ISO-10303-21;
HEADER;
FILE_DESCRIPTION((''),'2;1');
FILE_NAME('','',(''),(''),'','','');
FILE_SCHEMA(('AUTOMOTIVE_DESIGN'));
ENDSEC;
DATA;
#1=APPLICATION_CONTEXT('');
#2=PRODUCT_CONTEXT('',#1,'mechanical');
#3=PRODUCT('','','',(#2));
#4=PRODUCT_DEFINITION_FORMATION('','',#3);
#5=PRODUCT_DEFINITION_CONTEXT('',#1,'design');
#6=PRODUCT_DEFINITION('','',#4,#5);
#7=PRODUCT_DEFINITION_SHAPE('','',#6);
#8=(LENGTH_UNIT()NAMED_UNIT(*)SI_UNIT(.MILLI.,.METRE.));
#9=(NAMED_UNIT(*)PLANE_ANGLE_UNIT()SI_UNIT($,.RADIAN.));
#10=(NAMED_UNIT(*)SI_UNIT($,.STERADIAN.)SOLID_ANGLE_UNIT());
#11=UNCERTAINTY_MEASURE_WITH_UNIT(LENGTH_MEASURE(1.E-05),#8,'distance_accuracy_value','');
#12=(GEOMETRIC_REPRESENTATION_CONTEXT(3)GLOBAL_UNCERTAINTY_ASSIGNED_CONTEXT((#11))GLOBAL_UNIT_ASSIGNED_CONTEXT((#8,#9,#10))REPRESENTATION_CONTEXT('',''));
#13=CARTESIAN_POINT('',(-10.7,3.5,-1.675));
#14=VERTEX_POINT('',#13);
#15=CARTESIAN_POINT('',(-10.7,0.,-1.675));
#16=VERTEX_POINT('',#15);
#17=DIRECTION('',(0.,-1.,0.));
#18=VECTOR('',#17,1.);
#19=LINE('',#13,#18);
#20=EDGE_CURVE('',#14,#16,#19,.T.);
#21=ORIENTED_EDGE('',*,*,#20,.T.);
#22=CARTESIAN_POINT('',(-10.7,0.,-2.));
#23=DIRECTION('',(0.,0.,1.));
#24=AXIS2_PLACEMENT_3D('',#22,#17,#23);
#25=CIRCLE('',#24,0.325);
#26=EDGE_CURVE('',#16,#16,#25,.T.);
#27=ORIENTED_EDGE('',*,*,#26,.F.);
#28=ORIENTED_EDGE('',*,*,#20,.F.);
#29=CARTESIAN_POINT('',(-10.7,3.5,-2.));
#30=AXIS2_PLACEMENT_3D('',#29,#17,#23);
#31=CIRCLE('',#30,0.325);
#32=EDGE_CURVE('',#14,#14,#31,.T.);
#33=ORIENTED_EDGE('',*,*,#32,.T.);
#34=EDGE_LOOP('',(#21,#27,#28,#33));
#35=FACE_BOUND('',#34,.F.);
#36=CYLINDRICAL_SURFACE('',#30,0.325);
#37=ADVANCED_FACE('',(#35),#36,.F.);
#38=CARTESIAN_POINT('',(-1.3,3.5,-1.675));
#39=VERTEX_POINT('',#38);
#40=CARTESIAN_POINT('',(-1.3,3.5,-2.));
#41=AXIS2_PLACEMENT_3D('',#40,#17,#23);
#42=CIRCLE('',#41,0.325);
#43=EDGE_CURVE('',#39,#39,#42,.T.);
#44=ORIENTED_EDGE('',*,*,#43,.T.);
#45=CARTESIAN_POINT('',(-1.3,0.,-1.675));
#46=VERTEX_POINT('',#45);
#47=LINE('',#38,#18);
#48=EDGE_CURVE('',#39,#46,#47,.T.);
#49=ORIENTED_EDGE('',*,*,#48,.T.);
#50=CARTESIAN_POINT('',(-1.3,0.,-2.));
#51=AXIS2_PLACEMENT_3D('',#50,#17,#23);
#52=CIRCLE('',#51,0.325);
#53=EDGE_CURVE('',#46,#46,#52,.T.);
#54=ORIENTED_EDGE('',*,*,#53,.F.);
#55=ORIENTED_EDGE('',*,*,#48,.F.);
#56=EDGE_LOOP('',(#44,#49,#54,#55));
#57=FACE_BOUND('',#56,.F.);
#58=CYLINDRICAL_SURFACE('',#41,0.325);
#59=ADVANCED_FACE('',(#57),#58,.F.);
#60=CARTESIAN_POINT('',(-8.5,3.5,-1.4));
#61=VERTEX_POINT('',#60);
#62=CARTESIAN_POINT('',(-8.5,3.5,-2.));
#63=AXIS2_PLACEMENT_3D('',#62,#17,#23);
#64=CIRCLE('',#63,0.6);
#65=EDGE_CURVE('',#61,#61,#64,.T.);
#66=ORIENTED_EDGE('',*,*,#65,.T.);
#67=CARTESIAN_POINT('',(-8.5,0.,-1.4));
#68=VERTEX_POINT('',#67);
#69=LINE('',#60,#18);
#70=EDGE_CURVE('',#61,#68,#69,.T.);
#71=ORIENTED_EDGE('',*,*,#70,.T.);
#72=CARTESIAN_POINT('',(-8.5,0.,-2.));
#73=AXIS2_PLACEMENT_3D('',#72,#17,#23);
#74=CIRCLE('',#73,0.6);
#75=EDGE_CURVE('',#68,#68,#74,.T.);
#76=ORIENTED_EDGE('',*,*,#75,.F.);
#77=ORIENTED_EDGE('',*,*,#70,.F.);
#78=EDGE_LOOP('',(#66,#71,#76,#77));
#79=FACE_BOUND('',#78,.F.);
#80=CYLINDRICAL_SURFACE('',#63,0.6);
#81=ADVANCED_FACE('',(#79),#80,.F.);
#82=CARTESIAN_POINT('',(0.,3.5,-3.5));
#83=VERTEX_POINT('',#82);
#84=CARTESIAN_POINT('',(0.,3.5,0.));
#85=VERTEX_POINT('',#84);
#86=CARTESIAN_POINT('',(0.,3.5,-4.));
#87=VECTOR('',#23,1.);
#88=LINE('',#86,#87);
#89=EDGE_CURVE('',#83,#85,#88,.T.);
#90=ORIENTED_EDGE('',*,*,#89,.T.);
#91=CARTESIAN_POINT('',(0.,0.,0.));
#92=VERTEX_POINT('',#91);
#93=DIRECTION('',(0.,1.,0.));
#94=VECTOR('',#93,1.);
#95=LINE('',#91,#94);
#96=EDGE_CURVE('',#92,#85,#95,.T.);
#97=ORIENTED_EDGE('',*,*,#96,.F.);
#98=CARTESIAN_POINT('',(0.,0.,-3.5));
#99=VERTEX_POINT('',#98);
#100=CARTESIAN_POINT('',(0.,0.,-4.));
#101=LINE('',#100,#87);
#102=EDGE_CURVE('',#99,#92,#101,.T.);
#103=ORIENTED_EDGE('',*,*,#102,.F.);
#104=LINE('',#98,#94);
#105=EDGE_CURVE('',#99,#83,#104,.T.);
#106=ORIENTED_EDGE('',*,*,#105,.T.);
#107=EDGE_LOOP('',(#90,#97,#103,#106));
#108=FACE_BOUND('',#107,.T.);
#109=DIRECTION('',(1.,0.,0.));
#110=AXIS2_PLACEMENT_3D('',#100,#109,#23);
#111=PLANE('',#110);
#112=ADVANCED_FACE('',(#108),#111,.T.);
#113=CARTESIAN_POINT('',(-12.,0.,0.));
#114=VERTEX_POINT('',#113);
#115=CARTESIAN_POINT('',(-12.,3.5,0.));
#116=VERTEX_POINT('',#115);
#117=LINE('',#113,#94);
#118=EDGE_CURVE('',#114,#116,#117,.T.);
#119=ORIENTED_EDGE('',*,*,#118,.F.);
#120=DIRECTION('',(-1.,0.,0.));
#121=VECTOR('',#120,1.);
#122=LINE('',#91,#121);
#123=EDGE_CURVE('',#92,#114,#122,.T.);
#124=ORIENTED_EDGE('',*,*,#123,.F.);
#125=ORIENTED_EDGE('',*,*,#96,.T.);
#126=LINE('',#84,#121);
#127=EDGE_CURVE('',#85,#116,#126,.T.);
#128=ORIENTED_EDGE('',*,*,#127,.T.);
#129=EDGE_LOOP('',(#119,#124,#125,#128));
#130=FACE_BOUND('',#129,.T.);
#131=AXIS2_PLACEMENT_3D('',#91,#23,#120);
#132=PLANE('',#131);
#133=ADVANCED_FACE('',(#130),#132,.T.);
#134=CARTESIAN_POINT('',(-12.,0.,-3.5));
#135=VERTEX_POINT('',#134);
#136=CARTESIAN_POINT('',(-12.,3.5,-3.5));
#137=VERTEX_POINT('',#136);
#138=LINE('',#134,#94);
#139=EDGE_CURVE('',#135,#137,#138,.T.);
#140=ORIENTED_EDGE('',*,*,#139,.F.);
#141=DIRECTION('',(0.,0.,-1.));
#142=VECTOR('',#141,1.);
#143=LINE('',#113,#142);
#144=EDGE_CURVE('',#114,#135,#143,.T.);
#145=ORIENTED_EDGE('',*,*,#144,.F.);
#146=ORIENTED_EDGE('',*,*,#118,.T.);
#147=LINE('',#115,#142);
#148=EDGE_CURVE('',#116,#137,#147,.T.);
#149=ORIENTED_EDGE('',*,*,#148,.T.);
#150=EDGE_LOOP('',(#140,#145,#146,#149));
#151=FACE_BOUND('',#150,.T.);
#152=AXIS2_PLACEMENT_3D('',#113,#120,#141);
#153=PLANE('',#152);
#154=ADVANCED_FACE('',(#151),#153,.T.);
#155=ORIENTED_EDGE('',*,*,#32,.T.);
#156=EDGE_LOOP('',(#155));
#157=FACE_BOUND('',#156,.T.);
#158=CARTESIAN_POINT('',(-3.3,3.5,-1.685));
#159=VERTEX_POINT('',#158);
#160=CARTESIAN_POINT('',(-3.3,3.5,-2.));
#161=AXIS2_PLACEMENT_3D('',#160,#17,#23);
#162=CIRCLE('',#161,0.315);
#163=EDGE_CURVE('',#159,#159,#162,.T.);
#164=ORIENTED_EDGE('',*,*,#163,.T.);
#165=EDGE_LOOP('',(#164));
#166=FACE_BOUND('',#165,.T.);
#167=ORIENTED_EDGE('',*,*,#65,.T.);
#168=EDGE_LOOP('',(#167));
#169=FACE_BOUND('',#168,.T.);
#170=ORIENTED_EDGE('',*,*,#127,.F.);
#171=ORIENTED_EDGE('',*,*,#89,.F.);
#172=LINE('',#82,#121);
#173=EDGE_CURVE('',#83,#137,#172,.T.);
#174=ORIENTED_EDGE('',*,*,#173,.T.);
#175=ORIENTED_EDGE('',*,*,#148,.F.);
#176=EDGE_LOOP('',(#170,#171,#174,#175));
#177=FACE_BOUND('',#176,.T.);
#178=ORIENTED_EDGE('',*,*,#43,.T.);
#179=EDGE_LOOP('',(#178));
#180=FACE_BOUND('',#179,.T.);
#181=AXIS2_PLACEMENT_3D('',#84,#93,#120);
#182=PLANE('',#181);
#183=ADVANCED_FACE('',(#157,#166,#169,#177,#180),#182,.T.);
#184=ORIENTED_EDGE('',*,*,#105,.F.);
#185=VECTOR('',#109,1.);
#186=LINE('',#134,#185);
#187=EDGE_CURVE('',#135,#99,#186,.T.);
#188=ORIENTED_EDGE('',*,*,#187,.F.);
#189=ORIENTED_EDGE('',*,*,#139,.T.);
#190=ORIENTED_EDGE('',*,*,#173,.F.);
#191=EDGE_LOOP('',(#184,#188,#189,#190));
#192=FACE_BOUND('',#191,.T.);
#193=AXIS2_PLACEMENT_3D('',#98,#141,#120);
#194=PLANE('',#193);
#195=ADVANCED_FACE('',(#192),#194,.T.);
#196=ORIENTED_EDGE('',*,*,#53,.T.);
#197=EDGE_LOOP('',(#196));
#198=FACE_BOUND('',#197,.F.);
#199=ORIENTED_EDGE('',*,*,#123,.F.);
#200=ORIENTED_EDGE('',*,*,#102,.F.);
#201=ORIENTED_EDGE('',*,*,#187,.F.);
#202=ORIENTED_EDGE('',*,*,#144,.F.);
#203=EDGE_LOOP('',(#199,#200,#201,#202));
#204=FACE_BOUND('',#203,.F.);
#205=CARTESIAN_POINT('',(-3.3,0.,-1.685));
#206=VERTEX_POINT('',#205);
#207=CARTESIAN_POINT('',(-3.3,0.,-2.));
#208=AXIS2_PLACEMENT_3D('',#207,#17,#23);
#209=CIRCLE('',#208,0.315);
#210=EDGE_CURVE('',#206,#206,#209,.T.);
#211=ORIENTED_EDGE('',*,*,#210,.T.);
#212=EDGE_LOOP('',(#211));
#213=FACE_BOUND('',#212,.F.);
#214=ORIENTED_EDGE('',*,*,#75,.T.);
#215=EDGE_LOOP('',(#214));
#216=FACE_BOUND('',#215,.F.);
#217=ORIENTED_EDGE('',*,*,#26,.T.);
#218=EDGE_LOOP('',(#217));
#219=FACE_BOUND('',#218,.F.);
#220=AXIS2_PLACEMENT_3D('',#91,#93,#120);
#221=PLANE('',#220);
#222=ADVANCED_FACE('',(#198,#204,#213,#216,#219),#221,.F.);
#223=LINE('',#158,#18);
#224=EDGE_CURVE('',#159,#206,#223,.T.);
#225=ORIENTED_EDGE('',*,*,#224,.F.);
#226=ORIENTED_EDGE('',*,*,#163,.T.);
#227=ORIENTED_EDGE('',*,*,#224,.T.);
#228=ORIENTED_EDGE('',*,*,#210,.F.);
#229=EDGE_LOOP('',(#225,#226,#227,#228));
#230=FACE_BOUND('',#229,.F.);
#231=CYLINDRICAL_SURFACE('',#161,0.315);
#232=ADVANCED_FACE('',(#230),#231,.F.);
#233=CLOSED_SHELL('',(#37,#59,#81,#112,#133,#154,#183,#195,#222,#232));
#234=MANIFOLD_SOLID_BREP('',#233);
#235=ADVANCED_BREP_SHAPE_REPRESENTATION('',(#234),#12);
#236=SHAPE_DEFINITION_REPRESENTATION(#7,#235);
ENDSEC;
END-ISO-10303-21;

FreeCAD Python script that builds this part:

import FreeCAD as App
import Part
import Sketcher

V = App.Vector


def add_polygon(sketch, points):
    """Adds a closed chain of lines whose ends are joined by coincident constraints."""
    first, n = sketch.GeometryCount, len(points)
    for a, b in zip(points, points[1:] + points[:1]):
        sketch.addGeometry(Part.LineSegment(App.Vector(*a, 0), App.Vector(*b, 0)), False)
    for i in range(n):
        sketch.addConstraint(Sketcher.Constraint("Coincident", first + i, 2, first + (i + 1) % n, 1))

doc = App.newDocument("Part")
body = doc.addObject("PartDesign::Body", "Body")

sketch1 = body.newObject("Sketcher::SketchObject", "Sketch")
sketch1.AttachmentSupport = (doc.getObject("XZ_Plane"), [""])
sketch1.MapMode = "FlatFace"
add_polygon(sketch1, [(-12, 0), (0, 0), (0, -4), (-12, -4)])
sketch1.addConstraint(Sketcher.Constraint("Horizontal", 0))
sketch1.addConstraint(Sketcher.Constraint("Vertical", 1))
sketch1.addConstraint(Sketcher.Constraint("Horizontal", 2))
sketch1.addConstraint(Sketcher.Constraint("Vertical", 3))
sketch1.addConstraint(Sketcher.Constraint("Coincident", 0, 2, -1, 1))
sketch1.addConstraint(Sketcher.Constraint("DistanceX", 0, 1, 0, 2, 12.0))
sketch1.addConstraint(Sketcher.Constraint("DistanceY", 1, 2, 1, 1, 4.0))
pad1 = body.newObject("PartDesign::Pad", "Pad")
pad1.Profile = sketch1
pad1.Length = 3.5
pad1.Reversed = True

sketch2 = body.newObject("Sketcher::SketchObject", "Sketch001")
sketch2.AttachmentSupport = (doc.getObject("XZ_Plane"), [""])
sketch2.MapMode = "FlatFace"
sketch2.AttachmentOffset = App.Placement(V(0, 0, -3.5), App.Rotation())
sketch2.addGeometry(Part.Circle(V(-10.7, -2, 0), V(0, 0, 1), 0.325), False)
sketch2.addGeometry(Part.Circle(V(-1.3, -2, 0), V(0, 0, 1), 0.325), False)
sketch2.addConstraint(Sketcher.Constraint("Equal", 0, 1))
sketch2.addConstraint(Sketcher.Constraint("Horizontal", 0, 3, 1, 3))
sketch2.addConstraint(Sketcher.Constraint("Diameter", 0, 0.65))
sketch2.addConstraint(Sketcher.Constraint("DistanceY", 0, 3, -1, 1, 2.0))
sketch2.addConstraint(Sketcher.Constraint("DistanceX", 0, 3, -1, 1, 10.7))
sketch2.addConstraint(Sketcher.Constraint("DistanceX", 1, 3, -1, 1, 1.3))
doc.recompute()
hole = body.newObject("PartDesign::Hole", "Hole")
hole.Profile = sketch2
hole.ThreadType = "None"
hole.Diameter = 0.65
hole.DepthType = "ThroughAll"
hole.Reversed = True

sketch3 = body.newObject("Sketcher::SketchObject", "Sketch002")
sketch3.AttachmentSupport = (doc.getObject("XZ_Plane"), [""])
sketch3.MapMode = "FlatFace"
sketch3.AttachmentOffset = App.Placement(V(0, 0, -3.5), App.Rotation())
sketch3.addGeometry(Part.Circle(V(-8.5, -2, 0), V(0, 0, 1), 0.6), False)
sketch3.addConstraint(Sketcher.Constraint("Diameter", 0, 1.2))
sketch3.addConstraint(Sketcher.Constraint("DistanceY", 0, 3, -1, 1, 2.0))
sketch3.addConstraint(Sketcher.Constraint("DistanceX", 0, 3, -1, 1, 8.5))
doc.recompute()
hole2 = body.newObject("PartDesign::Hole", "Hole001")
hole2.Profile = sketch3
hole2.ThreadType = "None"
hole2.Diameter = 1.2
hole2.DepthType = "ThroughAll"
hole2.Reversed = True

sketch4 = body.newObject("Sketcher::SketchObject", "Sketch003")
sketch4.AttachmentSupport = (doc.getObject("XZ_Plane"), [""])
sketch4.MapMode = "FlatFace"
sketch4.AttachmentOffset = App.Placement(V(0, 0, -3.5), App.Rotation())
sketch4.addGeometry(Part.Circle(V(-3.3, -2, 0), V(0, 0, 1), 0.315), False)
sketch4.addConstraint(Sketcher.Constraint("Diameter", 0, 0.63))
sketch4.addConstraint(Sketcher.Constraint("DistanceY", 0, 3, -1, 1, 2.0))
sketch4.addConstraint(Sketcher.Constraint("DistanceX", 0, 3, -1, 1, 3.3))
doc.recompute()
hole3 = body.newObject("PartDesign::Hole", "Hole002")
hole3.Profile = sketch4
hole3.ThreadType = "None"
hole3.Diameter = 0.63
hole3.DepthType = "ThroughAll"
hole3.Reversed = True

sketch5 = body.newObject("Sketcher::SketchObject", "Sketch004")
sketch5.AttachmentSupport = (doc.getObject("XY_Plane"), [""])
sketch5.MapMode = "FlatFace"
sketch5.AttachmentOffset = App.Placement(V(0, 0, -4), App.Rotation())
add_polygon(sketch5, [(0, 0), (-12, 0), (-12, 3.5), (0, 3.5)])
sketch5.addConstraint(Sketcher.Constraint("Horizontal", 0))
sketch5.addConstraint(Sketcher.Constraint("Vertical", 1))
sketch5.addConstraint(Sketcher.Constraint("Horizontal", 2))
sketch5.addConstraint(Sketcher.Constraint("Vertical", 3))
sketch5.addConstraint(Sketcher.Constraint("Coincident", 3, 2, -1, 1))
sketch5.addConstraint(Sketcher.Constraint("DistanceX", 0, 2, 0, 1, 12.0))
sketch5.addConstraint(Sketcher.Constraint("DistanceY", 1, 1, 1, 2, 3.5))
pocket1 = body.newObject("PartDesign::Pocket", "Pocket")
pocket1.Profile = sketch5
pocket1.Length = 0.5
pocket1.Reversed = True

doc.recompute()
